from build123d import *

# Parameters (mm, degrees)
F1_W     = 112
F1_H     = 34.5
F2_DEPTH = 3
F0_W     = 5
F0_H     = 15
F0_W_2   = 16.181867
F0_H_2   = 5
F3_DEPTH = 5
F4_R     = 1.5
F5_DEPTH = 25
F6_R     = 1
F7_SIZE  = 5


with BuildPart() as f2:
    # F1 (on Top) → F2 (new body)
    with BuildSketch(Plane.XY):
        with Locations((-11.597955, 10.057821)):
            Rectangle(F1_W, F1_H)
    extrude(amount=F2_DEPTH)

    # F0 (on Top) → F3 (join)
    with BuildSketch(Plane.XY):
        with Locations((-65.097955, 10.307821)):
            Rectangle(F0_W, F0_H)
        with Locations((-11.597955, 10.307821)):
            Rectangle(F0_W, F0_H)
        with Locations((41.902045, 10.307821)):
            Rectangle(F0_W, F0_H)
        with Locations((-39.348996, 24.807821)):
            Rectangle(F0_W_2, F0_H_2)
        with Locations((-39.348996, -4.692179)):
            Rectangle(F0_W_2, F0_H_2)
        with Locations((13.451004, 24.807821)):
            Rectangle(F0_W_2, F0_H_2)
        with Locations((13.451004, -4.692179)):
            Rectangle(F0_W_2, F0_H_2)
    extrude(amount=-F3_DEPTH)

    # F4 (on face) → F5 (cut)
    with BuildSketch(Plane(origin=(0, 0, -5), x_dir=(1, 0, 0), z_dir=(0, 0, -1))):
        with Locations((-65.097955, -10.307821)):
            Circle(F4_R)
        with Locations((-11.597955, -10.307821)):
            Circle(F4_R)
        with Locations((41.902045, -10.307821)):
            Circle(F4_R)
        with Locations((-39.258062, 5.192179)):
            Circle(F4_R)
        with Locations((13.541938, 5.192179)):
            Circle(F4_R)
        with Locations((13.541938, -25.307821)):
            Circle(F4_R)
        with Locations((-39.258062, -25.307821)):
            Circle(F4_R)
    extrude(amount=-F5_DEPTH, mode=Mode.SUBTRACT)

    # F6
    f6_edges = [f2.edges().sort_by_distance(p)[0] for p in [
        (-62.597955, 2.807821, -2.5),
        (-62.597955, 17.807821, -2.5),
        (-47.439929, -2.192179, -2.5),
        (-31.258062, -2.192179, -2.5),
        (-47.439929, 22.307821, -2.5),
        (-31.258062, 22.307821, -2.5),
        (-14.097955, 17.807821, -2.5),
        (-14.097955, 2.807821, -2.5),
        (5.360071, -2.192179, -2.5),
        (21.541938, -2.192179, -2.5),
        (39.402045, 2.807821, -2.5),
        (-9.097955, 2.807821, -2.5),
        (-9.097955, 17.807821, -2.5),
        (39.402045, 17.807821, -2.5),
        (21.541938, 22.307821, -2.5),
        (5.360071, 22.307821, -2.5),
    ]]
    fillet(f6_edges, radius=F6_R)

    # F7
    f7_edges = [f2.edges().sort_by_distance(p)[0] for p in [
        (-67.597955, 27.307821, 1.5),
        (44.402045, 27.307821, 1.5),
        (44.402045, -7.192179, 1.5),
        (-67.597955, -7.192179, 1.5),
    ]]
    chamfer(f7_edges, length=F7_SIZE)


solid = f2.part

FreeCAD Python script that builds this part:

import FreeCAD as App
import Part
import Sketcher

V = App.Vector
Q = App.Units.Quantity


def edges_at(feature, points):
    """Names of the edges that pass closest to the given points."""
    edges = feature.Shape.Edges
    near = lambda p: min(range(len(edges)), key=lambda i: edges[i].distToShape(Part.Vertex(*p))[0])
    return sorted({f"Edge{near(p) + 1}" for p in points})


def add_polygon(sketch, points):
    """Adds a closed chain of lines whose ends are joined by coincident constraints."""
    first, n = sketch.GeometryCount, len(points)
    for a, b in zip(points, points[1:] + points[:1]):
        sketch.addGeometry(Part.LineSegment(App.Vector(*a, 0), App.Vector(*b, 0)), False)
    for i in range(n):
        sketch.addConstraint(Sketcher.Constraint("Coincident", first + i, 2, first + (i + 1) % n, 1))

doc = App.newDocument("Part")
body = doc.addObject("PartDesign::Body", "Body")

# Sketch on XY plane
sketch1 = body.newObject("Sketcher::SketchObject", "Sketch")
sketch1.AttachmentSupport = (doc.getObject("XY_Plane"), [""])
sketch1.MapMode = "FlatFace"
add_polygon(sketch1, [(-68, 27), (-68, -7), (44, -7), (44, 27)])  # lines 0-3
sketch1.addConstraint(Sketcher.Constraint("Vertical", 0))
sketch1.addConstraint(Sketcher.Constraint("Horizontal", 1))
sketch1.addConstraint(Sketcher.Constraint("Vertical", 2))
sketch1.addConstraint(Sketcher.Constraint("Horizontal", 3))
sketch1.addConstraint(Sketcher.Constraint("DistanceX", 1, 1, 1, 2, Q("112 mm")))
sketch1.addConstraint(Sketcher.Constraint("DistanceY", 0, 2, 0, 1, Q("34.5 mm")))
sketch1.addConstraint(Sketcher.Constraint("DistanceY", 0, 2, -1, 1, Q("7.192179 mm")))
sketch1.addConstraint(Sketcher.Constraint("DistanceX", 0, 2, -1, 1, Q("67.597955 mm")))
pad1 = body.newObject("PartDesign::Pad", "Pad")
pad1.Profile = sketch1
pad1.Length = 3

# Sketch on XY plane
sketch2 = body.newObject("Sketcher::SketchObject", "Sketch001")
sketch2.AttachmentSupport = (doc.getObject("XY_Plane"), [""])
sketch2.MapMode = "FlatFace"
add_polygon(sketch2, [(-68, 18), (-68, 3), (-63, 3), (-63, 18)])  # lines 0-3
add_polygon(sketch2, [(-14, 18), (-14, 3), (-9, 3), (-9, 18)])  # lines 4-7
add_polygon(sketch2, [(39, 18), (39, 3), (44, 3), (44, 18)])  # lines 8-11
add_polygon(sketch2, [(-47, 27), (-47, 22), (-31, 22), (-31, 27)])  # lines 12-15
add_polygon(sketch2, [(-47, -2), (-47, -7), (-31, -7), (-31, -2)])  # lines 16-19
add_polygon(sketch2, [(5, 27), (5, 22), (22, 22), (22, 27)])  # lines 20-23
add_polygon(sketch2, [(5, -2), (5, -7), (22, -7), (22, -2)])  # lines 24-27
sketch2.addConstraint(Sketcher.Constraint("Vertical", 0))
sketch2.addConstraint(Sketcher.Constraint("Horizontal", 1))
sketch2.addConstraint(Sketcher.Constraint("Vertical", 2))
sketch2.addConstraint(Sketcher.Constraint("Horizontal", 3))
sketch2.addConstraint(Sketcher.Constraint("Vertical", 4))
sketch2.addConstraint(Sketcher.Constraint("Horizontal", 5))
sketch2.addConstraint(Sketcher.Constraint("Vertical", 6))
sketch2.addConstraint(Sketcher.Constraint("Horizontal", 7))
sketch2.addConstraint(Sketcher.Constraint("Vertical", 8))
sketch2.addConstraint(Sketcher.Constraint("Horizontal", 9))
sketch2.addConstraint(Sketcher.Constraint("Vertical", 10))
sketch2.addConstraint(Sketcher.Constraint("Horizontal", 11))
sketch2.addConstraint(Sketcher.Constraint("Vertical", 12))
sketch2.addConstraint(Sketcher.Constraint("Horizontal", 13))
sketch2.addConstraint(Sketcher.Constraint("Vertical", 14))
sketch2.addConstraint(Sketcher.Constraint("Horizontal", 15))
sketch2.addConstraint(Sketcher.Constraint("Vertical", 16))
sketch2.addConstraint(Sketcher.Constraint("Horizontal", 17))
sketch2.addConstraint(Sketcher.Constraint("Vertical", 18))
sketch2.addConstraint(Sketcher.Constraint("Horizontal", 19))
sketch2.addConstraint(Sketcher.Constraint("Vertical", 20))
sketch2.addConstraint(Sketcher.Constraint("Horizontal", 21))
sketch2.addConstraint(Sketcher.Constraint("Vertical", 22))
sketch2.addConstraint(Sketcher.Constraint("Horizontal", 23))
sketch2.addConstraint(Sketcher.Constraint("Vertical", 24))
sketch2.addConstraint(Sketcher.Constraint("Horizontal", 25))
sketch2.addConstraint(Sketcher.Constraint("Vertical", 26))
sketch2.addConstraint(Sketcher.Constraint("Horizontal", 27))
sketch2.addConstraint(Sketcher.Constraint("Horizontal", 1, 2, 4, 2))
sketch2.addConstraint(Sketcher.Constraint("Horizontal", 3, 2, 6, 2))
sketch2.addConstraint(Sketcher.Constraint("Horizontal", 5, 2, 8, 2))
sketch2.addConstraint(Sketcher.Constraint("Horizontal", 7, 2, 10, 2))
sketch2.addConstraint(Sketcher.Constraint("Horizontal", 13, 2, 20, 2))
sketch2.addConstraint(Sketcher.Constraint("Horizontal", 15, 2, 22, 2))
sketch2.addConstraint(Sketcher.Constraint("Horizontal", 17, 2, 24, 2))
sketch2.addConstraint(Sketcher.Constraint("Horizontal", 19, 2, 26, 2))
sketch2.addConstraint(Sketcher.Constraint("Vertical", 15, 2, 16, 2))
sketch2.addConstraint(Sketcher.Constraint("Vertical", 14, 2, 17, 2))
sketch2.addConstraint(Sketcher.Constraint("Vertical", 23, 2, 24, 2))
sketch2.addConstraint(Sketcher.Constraint("Vertical", 22, 2, 25, 2))
sketch2.addConstraint(Sketcher.Constraint("Equal", 3, 5))
sketch2.addConstraint(Sketcher.Constraint("Equal", 7, 9))
sketch2.addConstraint(Sketcher.Constraint("Equal", 19, 21))
sketch2.addConstraint(Sketcher.Constraint("Equal", 11, 12))
sketch2.addConstraint(Sketcher.Constraint("Equal", 14, 16))
sketch2.addConstraint(Sketcher.Constraint("DistanceX", 1, 1, 1, 2, Q("5 mm")))
sketch2.addConstraint(Sketcher.Constraint("DistanceY", 0, 2, 0, 1, Q("15 mm")))
sketch2.addConstraint(Sketcher.Constraint("DistanceX", 1, 2, 8, 2, Q("102 mm")))
sketch2.addConstraint(Sketcher.Constraint("DistanceY", 16, 2, 1, 2, Q("10 mm")))
sketch2.addConstraint(Sketcher.Constraint("DistanceX", 1, 2, 4, 2, Q("48.5 mm")))
sketch2.addConstraint(Sketcher.Constraint("DistanceY", 2, 2, 12, 2, Q("4.5 mm")))
sketch2.addConstraint(Sketcher.Constraint("DistanceX", 13, 1, 13, 2, Q("16.181867 mm")))
sketch2.addConstraint(Sketcher.Constraint("DistanceY", -1, 1, 0, 2, Q("2.807821 mm")))
sketch2.addConstraint(Sketcher.Constraint("DistanceX", 12, 2, -1, 1, Q("47.439929 mm")))
sketch2.addConstraint(Sketcher.Constraint("DistanceX", -1, 1, 20, 2, Q("5.36007 mm")))
sketch2.addConstraint(Sketcher.Constraint("DistanceX", 0, 2, -1, 1, Q("67.597955 mm")))
pad2 = body.newObject("PartDesign::Pad", "Pad001")
pad2.Profile = sketch2
pad2.Length = 5
pad2.Reversed = True

# Sketch on XY plane
sketch3 = body.newObject("Sketcher::SketchObject", "Sketch002")
sketch3.AttachmentSupport = (doc.getObject("XY_Plane"), [""])
sketch3.MapMode = "FlatFace"
sketch3.AttachmentOffset = App.Placement(V(0, 0, -5), App.Rotation())
sketch3.addGeometry(Part.Circle(V(-65.1, 10.3, 0), V(0, 0, 1), 1.5), False)
sketch3.addGeometry(Part.Circle(V(-11.6, 10.3, 0), V(0, 0, 1), 1.5), False)
sketch3.addGeometry(Part.Circle(V(41.9, 10.3, 0), V(0, 0, 1), 1.5), False)
sketch3.addGeometry(Part.Circle(V(-39.3, -5.2, 0), V(0, 0, 1), 1.5), False)
sketch3.addGeometry(Part.Circle(V(13.5, -5.2, 0), V(0, 0, 1), 1.5), False)
sketch3.addGeometry(Part.Circle(V(13.5, 25.3, 0), V(0, 0, 1), 1.5), False)
sketch3.addGeometry(Part.Circle(V(-39.3, 25.3, 0), V(0, 0, 1), 1.5), False)
sketch3.addConstraint(Sketcher.Constraint("Equal", 0, 1))
sketch3.addConstraint(Sketcher.Constraint("Equal", 1, 2))
sketch3.addConstraint(Sketcher.Constraint("Equal", 2, 3))
sketch3.addConstraint(Sketcher.Constraint("Equal", 3, 4))
sketch3.addConstraint(Sketcher.Constraint("Equal", 4, 5))
sketch3.addConstraint(Sketcher.Constraint("Equal", 5, 6))
sketch3.addConstraint(Sketcher.Constraint("Horizontal", 0, 3, 1, 3))
sketch3.addConstraint(Sketcher.Constraint("Horizontal", 1, 3, 2, 3))
sketch3.addConstraint(Sketcher.Constraint("Horizontal", 3, 3, 4, 3))
sketch3.addConstraint(Sketcher.Constraint("Horizontal", 5, 3, 6, 3))
sketch3.addConstraint(Sketcher.Constraint("Vertical", 4, 3, 5, 3))
sketch3.addConstraint(Sketcher.Constraint("Vertical", 3, 3, 6, 3))
sketch3.addConstraint(Sketcher.Constraint("Diameter", 0, Q("3 mm")))
sketch3.addConstraint(Sketcher.Constraint("DistanceX", 0, 3, 2, 3, Q("107 mm")))
sketch3.addConstraint(Sketcher.Constraint("DistanceY", 1, 3, 5, 3, Q("15 mm")))
sketch3.addConstraint(Sketcher.Constraint("DistanceX", 0, 3, 1, 3, Q("53.5 mm")))
sketch3.addConstraint(Sketcher.Constraint("DistanceY", 3, 3, 0, 3, Q("15.5 mm")))
sketch3.addConstraint(Sketcher.Constraint("DistanceX", 3, 3, 4, 3, Q("52.8 mm")))
sketch3.addConstraint(Sketcher.Constraint("DistanceY", -1, 1, 0, 3, Q("10.307821 mm")))
sketch3.addConstraint(Sketcher.Constraint("DistanceX", 0, 3, -1, 1, Q("65.097955 mm")))
sketch3.addConstraint(Sketcher.Constraint("DistanceX", 3, 3, -1, 1, Q("39.258062 mm")))
pocket1 = body.newObject("PartDesign::Pocket", "Pocket")
pocket1.Profile = sketch3
pocket1.Length = 25
pocket1.Reversed = True
doc.recompute()

fillet = body.newObject("PartDesign::Fillet", "Fillet")
fillet.Base = (pocket1, edges_at(pocket1, [
    (-62.598, 2.808, -2.5),
    (-62.598, 17.808, -2.5),
    (-47.44, -2.192, -2.5),
    (-31.258, -2.192, -2.5),
    (-47.44, 22.308, -2.5),
    (-31.258, 22.308, -2.5),
    (-14.098, 17.808, -2.5),
    (-14.098, 2.808, -2.5),
    (5.36, -2.192, -2.5),
    (21.542, -2.192, -2.5),
    (39.402, 2.808, -2.5),
    (-9.098, 2.808, -2.5),
    (-9.098, 17.808, -2.5),
    (39.402, 17.808, -2.5),
    (21.542, 22.308, -2.5),
    (5.36, 22.308, -2.5),
]))
fillet.Radius = 1
doc.recompute()

chamfer = body.newObject("PartDesign::Chamfer", "Chamfer")
chamfer.Base = (fillet, edges_at(fillet, [
    (-67.598, 27.308, 1.5),
    (44.402, 27.308, 1.5),
    (44.402, -7.192, 1.5),
    (-67.598, -7.192, 1.5),
]))
chamfer.Size = 5

doc.recompute()
